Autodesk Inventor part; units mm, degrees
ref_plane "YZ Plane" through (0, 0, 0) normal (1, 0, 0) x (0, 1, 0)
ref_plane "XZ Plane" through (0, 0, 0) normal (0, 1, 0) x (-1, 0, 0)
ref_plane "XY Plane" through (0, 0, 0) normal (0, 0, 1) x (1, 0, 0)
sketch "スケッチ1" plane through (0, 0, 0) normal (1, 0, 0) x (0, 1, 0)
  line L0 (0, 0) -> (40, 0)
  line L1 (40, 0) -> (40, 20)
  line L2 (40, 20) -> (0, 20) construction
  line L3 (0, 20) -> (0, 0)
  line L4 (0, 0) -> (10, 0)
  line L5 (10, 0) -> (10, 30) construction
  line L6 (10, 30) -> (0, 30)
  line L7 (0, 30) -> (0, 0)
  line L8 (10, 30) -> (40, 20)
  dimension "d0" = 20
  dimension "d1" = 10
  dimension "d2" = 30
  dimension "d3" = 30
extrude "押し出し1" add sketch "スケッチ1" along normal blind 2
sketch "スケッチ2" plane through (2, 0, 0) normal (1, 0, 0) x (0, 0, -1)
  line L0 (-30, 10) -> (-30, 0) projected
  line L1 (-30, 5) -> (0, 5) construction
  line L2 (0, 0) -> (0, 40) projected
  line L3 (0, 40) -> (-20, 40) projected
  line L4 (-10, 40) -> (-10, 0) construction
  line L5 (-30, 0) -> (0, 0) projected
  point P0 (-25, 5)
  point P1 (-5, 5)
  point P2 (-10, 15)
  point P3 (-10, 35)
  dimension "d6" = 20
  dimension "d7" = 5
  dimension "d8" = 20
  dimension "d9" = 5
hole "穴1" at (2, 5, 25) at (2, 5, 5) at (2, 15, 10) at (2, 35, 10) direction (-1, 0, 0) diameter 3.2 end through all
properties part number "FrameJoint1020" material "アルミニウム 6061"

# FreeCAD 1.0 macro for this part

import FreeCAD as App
import Part
import Sketcher

doc = App.newDocument("Part")
params = doc.addObject("Spreadsheet::Sheet", "Params")
for row, (alias, value) in enumerate([
    ("sketch1_width", "10 mm"),
    ("sketch1_height", "30 mm"),
    ("sketch1_height2", "20 mm"),
    ("pad1_length", "2 mm"),
    ("sketch2_diameter", "3.2 mm"),
    ("hole_diameter", "3.2 mm"),
], start=1):
    params.set(f"A{row}", alias)
    params.set(f"B{row}", "=" + value)
    params.setAlias(f"B{row}", alias)

body = doc.addObject("PartDesign::Body", "Body")

# Sketch on YZ plane
sketch1 = body.newObject("Sketcher::SketchObject", "Sketch")
sketch1.AttachmentSupport = (doc.getObject("YZ_Plane"), [""])
sketch1.MapMode = "FlatFace"
sketch1.addGeometry(Part.LineSegment(App.Vector(0, 30, 0), App.Vector(0, 0, 0)), False)
sketch1.addGeometry(Part.LineSegment(App.Vector(0, 0, 0), App.Vector(40, 0, 0)), False)
sketch1.addGeometry(Part.LineSegment(App.Vector(40, 0, 0), App.Vector(40, 20, 0)), False)
sketch1.addGeometry(Part.LineSegment(App.Vector(40, 20, 0), App.Vector(10, 30, 0)), False)
sketch1.addGeometry(Part.LineSegment(App.Vector(10, 30, 0), App.Vector(0, 30, 0)), False)
sketch1.addConstraint(Sketcher.Constraint("Coincident", 0, 2, 1, 1))
sketch1.addConstraint(Sketcher.Constraint("Coincident", 1, 2, 2, 1))
sketch1.addConstraint(Sketcher.Constraint("Coincident", 2, 2, 3, 1))
sketch1.addConstraint(Sketcher.Constraint("Coincident", 3, 2, 4, 1))
sketch1.addConstraint(Sketcher.Constraint("Coincident", 4, 2, 0, 1))
sketch1.addConstraint(Sketcher.Constraint("Vertical", 0))
sketch1.addConstraint(Sketcher.Constraint("Horizontal", 1))
sketch1.addConstraint(Sketcher.Constraint("Vertical", 2))
sketch1.addConstraint(Sketcher.Constraint("Horizontal", 4))
sketch1.addConstraint(Sketcher.Constraint("Coincident", 0, 2, -1, 1))
sketch1.addConstraint(Sketcher.Constraint("DistanceX", 4, 2, 4, 1, 10.0))
sketch1.addConstraint(Sketcher.Constraint("DistanceY", 0, 2, 0, 1, 30.0))
sketch1.addConstraint(Sketcher.Constraint("DistanceY", 2, 1, 2, 2, 20.0))
sketch1.addConstraint(Sketcher.Constraint("DistanceX", 3, 2, 2, 2, 30.0))
sketch1.setExpression("Constraints[10]", "Params.sketch1_width")
sketch1.setExpression("Constraints[11]", "Params.sketch1_height")
sketch1.setExpression("Constraints[12]", "Params.sketch1_height2")
pad1 = body.newObject("PartDesign::Pad", "Pad")
pad1.Profile = sketch1
pad1.setExpression("Length", "Params.pad1_length")

# Sketch on YZ plane
sketch2 = body.newObject("Sketcher::SketchObject", "Sketch001")
sketch2.AttachmentSupport = (doc.getObject("YZ_Plane"), [""])
sketch2.MapMode = "FlatFace"
sketch2.AttachmentOffset = App.Placement(App.Vector(0, 0, 2), App.Rotation())
sketch2.addGeometry(Part.Circle(App.Vector(5, 25, 0), App.Vector(0, 0, 1), 1.6), False)
sketch2.addGeometry(Part.Circle(App.Vector(5, 5, 0), App.Vector(0, 0, 1), 1.6), False)
sketch2.addGeometry(Part.Circle(App.Vector(15, 10, 0), App.Vector(0, 0, 1), 1.6), False)
sketch2.addGeometry(Part.Circle(App.Vector(35, 10, 0), App.Vector(0, 0, 1), 1.6), False)
sketch2.addConstraint(Sketcher.Constraint("Equal", 0, 1))
sketch2.addConstraint(Sketcher.Constraint("Equal", 1, 2))
sketch2.addConstraint(Sketcher.Constraint("Equal", 2, 3))
sketch2.addConstraint(Sketcher.Constraint("Horizontal", 2, 3, 3, 3))
sketch2.addConstraint(Sketcher.Constraint("Vertical", 0, 3, 1, 3))
sketch2.addConstraint(Sketcher.Constraint("Diameter", 0, 3.2))
sketch2.addConstraint(Sketcher.Constraint("DistanceX", -1, 1, 0, 3, 5.0))
sketch2.addConstraint(Sketcher.Constraint("DistanceY", -1, 1, 0, 3, 25.0))
sketch2.addConstraint(Sketcher.Constraint("DistanceY", -1, 1, 1, 3, 5.0))
sketch2.addConstraint(Sketcher.Constraint("DistanceX", -1, 1, 2, 3, 15.0))
sketch2.addConstraint(Sketcher.Constraint("DistanceY", -1, 1, 2, 3, 10.0))
sketch2.addConstraint(Sketcher.Constraint("DistanceX", -1, 1, 3, 3, 35.0))
sketch2.setExpression("Constraints[5]", "Params.sketch2_diameter")
doc.recompute()
hole = body.newObject("PartDesign::Hole", "Hole")
hole.Profile = sketch2
hole.ThreadType = "None"
hole.setExpression("Diameter", "Params.hole_diameter")
hole.DepthType = "ThroughAll"

doc.recompute()
